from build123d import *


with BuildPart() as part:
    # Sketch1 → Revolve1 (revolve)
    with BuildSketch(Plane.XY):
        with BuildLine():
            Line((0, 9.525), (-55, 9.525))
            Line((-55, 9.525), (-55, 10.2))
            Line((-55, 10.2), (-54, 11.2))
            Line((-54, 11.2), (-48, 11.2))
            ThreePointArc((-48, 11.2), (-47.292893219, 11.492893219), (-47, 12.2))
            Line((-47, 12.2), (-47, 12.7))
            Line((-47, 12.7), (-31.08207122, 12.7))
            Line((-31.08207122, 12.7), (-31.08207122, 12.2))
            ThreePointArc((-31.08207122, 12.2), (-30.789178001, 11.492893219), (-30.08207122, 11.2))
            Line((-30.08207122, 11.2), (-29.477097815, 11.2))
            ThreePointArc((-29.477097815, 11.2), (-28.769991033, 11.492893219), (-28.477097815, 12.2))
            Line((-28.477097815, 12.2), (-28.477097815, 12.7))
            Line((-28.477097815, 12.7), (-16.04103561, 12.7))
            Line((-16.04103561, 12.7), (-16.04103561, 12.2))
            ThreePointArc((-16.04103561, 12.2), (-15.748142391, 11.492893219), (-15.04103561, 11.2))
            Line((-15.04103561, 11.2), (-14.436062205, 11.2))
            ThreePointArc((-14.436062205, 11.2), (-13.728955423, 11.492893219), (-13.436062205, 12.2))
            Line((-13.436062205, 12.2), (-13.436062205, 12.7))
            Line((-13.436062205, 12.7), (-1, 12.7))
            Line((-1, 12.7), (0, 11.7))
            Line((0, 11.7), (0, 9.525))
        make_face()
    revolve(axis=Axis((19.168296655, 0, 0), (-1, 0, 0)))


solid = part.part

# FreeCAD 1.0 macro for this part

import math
import FreeCAD as App
import Part
import Sketcher
Q = App.Units.Quantity

doc = App.newDocument("Part")
body = doc.addObject("PartDesign::Body", "Body")

# Sketch on XY plane
sketch1 = doc.addObject("Sketcher::SketchObject", "Sketch")
body.addObject(sketch1)
sketch1.AttachmentSupport = (doc.XY_Plane, [""])
sketch1.MapMode = "FlatFace"
sketch1.addGeometry(Part.LineSegment(App.Vector(-55, 9.5, 0), App.Vector(0, 9.5, 0)), False)
sketch1.addGeometry(Part.LineSegment(App.Vector(0, 9.5, 0), App.Vector(0, 11.7, 0)), False)
sketch1.addGeometry(Part.LineSegment(App.Vector(0, 11.7, 0), App.Vector(-1, 12.7, 0)), False)
sketch1.addGeometry(Part.LineSegment(App.Vector(-1, 12.7, 0), App.Vector(-13.4, 12.7, 0)), False)
sketch1.addGeometry(Part.LineSegment(App.Vector(-13.4, 12.7, 0), App.Vector(-13.4, 12.2, 0)), False)
sketch1.addGeometry(Part.ArcOfCircle(Part.Circle(App.Vector(-14.4, 12.2, 0), App.Vector(0, 0, 1), 1), math.radians(-90), math.radians(0)), False)
sketch1.addGeometry(Part.LineSegment(App.Vector(-14.4, 11.2, 0), App.Vector(-15, 11.2, 0)), False)
sketch1.addGeometry(Part.ArcOfCircle(Part.Circle(App.Vector(-15, 12.2, 0), App.Vector(0, 0, 1), 1), math.radians(-180), math.radians(-90)), False)
sketch1.addGeometry(Part.LineSegment(App.Vector(-16, 12.2, 0), App.Vector(-16, 12.7, 0)), False)
sketch1.addGeometry(Part.LineSegment(App.Vector(-16, 12.7, 0), App.Vector(-28.5, 12.7, 0)), False)
sketch1.addGeometry(Part.LineSegment(App.Vector(-28.5, 12.7, 0), App.Vector(-28.5, 12.2, 0)), False)
sketch1.addGeometry(Part.ArcOfCircle(Part.Circle(App.Vector(-29.5, 12.2, 0), App.Vector(0, 0, 1), 1), math.radians(-90), math.radians(0)), False)
sketch1.addGeometry(Part.LineSegment(App.Vector(-29.5, 11.2, 0), App.Vector(-30.1, 11.2, 0)), False)
sketch1.addGeometry(Part.ArcOfCircle(Part.Circle(App.Vector(-30.1, 12.2, 0), App.Vector(0, 0, 1), 1), math.radians(-180), math.radians(-90)), False)
sketch1.addGeometry(Part.LineSegment(App.Vector(-31.1, 12.2, 0), App.Vector(-31.1, 12.7, 0)), False)
sketch1.addGeometry(Part.LineSegment(App.Vector(-31.1, 12.7, 0), App.Vector(-47, 12.7, 0)), False)
sketch1.addGeometry(Part.LineSegment(App.Vector(-47, 12.7, 0), App.Vector(-47, 12.2, 0)), False)
sketch1.addGeometry(Part.ArcOfCircle(Part.Circle(App.Vector(-48, 12.2, 0), App.Vector(0, 0, 1), 1), math.radians(-90), math.radians(0)), False)
sketch1.addGeometry(Part.LineSegment(App.Vector(-48, 11.2, 0), App.Vector(-54, 11.2, 0)), False)
sketch1.addGeometry(Part.LineSegment(App.Vector(-54, 11.2, 0), App.Vector(-55, 10.2, 0)), False)
sketch1.addGeometry(Part.LineSegment(App.Vector(-55, 10.2, 0), App.Vector(-55, 9.5, 0)), False)
sketch1.addConstraint(Sketcher.Constraint("Coincident", 0, 2, 1, 1))
sketch1.addConstraint(Sketcher.Constraint("Coincident", 1, 2, 2, 1))
sketch1.addConstraint(Sketcher.Constraint("Coincident", 2, 2, 3, 1))
sketch1.addConstraint(Sketcher.Constraint("Coincident", 3, 2, 4, 1))
sketch1.addConstraint(Sketcher.Constraint("Tangent", 4, 2, 5, 2))
sketch1.addConstraint(Sketcher.Constraint("Tangent", 5, 1, 6, 1))
sketch1.addConstraint(Sketcher.Constraint("Tangent", 6, 2, 7, 2))
sketch1.addConstraint(Sketcher.Constraint("Tangent", 7, 1, 8, 1))
sketch1.addConstraint(Sketcher.Constraint("Coincident", 8, 2, 9, 1))
sketch1.addConstraint(Sketcher.Constraint("Coincident", 9, 2, 10, 1))
sketch1.addConstraint(Sketcher.Constraint("Tangent", 10, 2, 11, 2))
sketch1.addConstraint(Sketcher.Constraint("Tangent", 11, 1, 12, 1))
sketch1.addConstraint(Sketcher.Constraint("Tangent", 12, 2, 13, 2))
sketch1.addConstraint(Sketcher.Constraint("Tangent", 13, 1, 14, 1))
sketch1.addConstraint(Sketcher.Constraint("Coincident", 14, 2, 15, 1))
sketch1.addConstraint(Sketcher.Constraint("Coincident", 15, 2, 16, 1))
sketch1.addConstraint(Sketcher.Constraint("Tangent", 16, 2, 17, 2))
sketch1.addConstraint(Sketcher.Constraint("Tangent", 17, 1, 18, 1))
sketch1.addConstraint(Sketcher.Constraint("Coincident", 18, 2, 19, 1))
sketch1.addConstraint(Sketcher.Constraint("Coincident", 19, 2, 20, 1))
sketch1.addConstraint(Sketcher.Constraint("Coincident", 20, 2, 0, 1))
sketch1.addConstraint(Sketcher.Constraint("Horizontal", 0))
sketch1.addConstraint(Sketcher.Constraint("Vertical", 1))
sketch1.addConstraint(Sketcher.Constraint("Horizontal", 3))
sketch1.addConstraint(Sketcher.Constraint("Vertical", 4))
sketch1.addConstraint(Sketcher.Constraint("Horizontal", 6))
sketch1.addConstraint(Sketcher.Constraint("Vertical", 8))
sketch1.addConstraint(Sketcher.Constraint("Horizontal", 9))
sketch1.addConstraint(Sketcher.Constraint("Vertical", 10))
sketch1.addConstraint(Sketcher.Constraint("Horizontal", 12))
sketch1.addConstraint(Sketcher.Constraint("Vertical", 14))
sketch1.addConstraint(Sketcher.Constraint("Horizontal", 15))
sketch1.addConstraint(Sketcher.Constraint("Vertical", 16))
sketch1.addConstraint(Sketcher.Constraint("Horizontal", 18))
sketch1.addConstraint(Sketcher.Constraint("Vertical", 20))
sketch1.addConstraint(Sketcher.Constraint("Equal", 5, 7))
sketch1.addConstraint(Sketcher.Constraint("Equal", 7, 11))
sketch1.addConstraint(Sketcher.Constraint("Equal", 11, 13))
sketch1.addConstraint(Sketcher.Constraint("Equal", 13, 17))
sketch1.addConstraint(Sketcher.Constraint("PointOnObject", 0, 2, -2))
sketch1.addConstraint(Sketcher.Constraint("Perpendicular", 2, 19))
sketch1.addConstraint(Sketcher.Constraint("Horizontal", 7, 3, 11, 3))
sketch1.addConstraint(Sketcher.Constraint("Horizontal", 13, 3, 17, 3))
sketch1.addConstraint(Sketcher.Constraint("Horizontal", 3, 2, 8, 2))
sketch1.addConstraint(Sketcher.Constraint("Horizontal", 9, 2, 14, 2))
sketch1.addConstraint(Sketcher.Constraint("Equal", 3, 9))
sketch1.addConstraint(Sketcher.Constraint("Equal", 6, 12))
sketch1.addConstraint(Sketcher.Constraint("Equal", 2, 19))
sketch1.addConstraint(Sketcher.Constraint("Radius", 5, 1.0))
sketch1.addConstraint(Sketcher.Constraint("DistanceX", 0, 1, 0, 2, 55.0))
sketch1.addConstraint(Sketcher.Constraint("DistanceX", 18, 2, 18, 1, 6.0))
sketch1.addConstraint(Sketcher.Constraint("Angle", 2, Q("135 deg")))
sketch1.addConstraint(Sketcher.Constraint("DistanceY", 4, 2, 4, 1, 0.5))
sketch1.addConstraint(Sketcher.Constraint("DistanceX", 17, 3, -1, 1, 48.0))
sketch1.addConstraint(Sketcher.Constraint("DistanceY", -1, 1, 5, 3, 12.2))
sketch1.addConstraint(Sketcher.Constraint("DistanceY", 1, 1, 1, 2, 2.175))
sketch1.addConstraint(Sketcher.Constraint("DistanceX", 15, 2, 15, 1, 15.917929))
sketch1.addConstraint(Sketcher.Constraint("DistanceX", 3, 2, 3, 1, 12.436062))
revolution = doc.addObject("PartDesign::Revolution", "Revolution")
body.addObject(revolution)
revolution.Profile = sketch1
revolution.ReferenceAxis = (sketch1, ["H_Axis"])
revolution.Angle = 360

doc.recompute()
